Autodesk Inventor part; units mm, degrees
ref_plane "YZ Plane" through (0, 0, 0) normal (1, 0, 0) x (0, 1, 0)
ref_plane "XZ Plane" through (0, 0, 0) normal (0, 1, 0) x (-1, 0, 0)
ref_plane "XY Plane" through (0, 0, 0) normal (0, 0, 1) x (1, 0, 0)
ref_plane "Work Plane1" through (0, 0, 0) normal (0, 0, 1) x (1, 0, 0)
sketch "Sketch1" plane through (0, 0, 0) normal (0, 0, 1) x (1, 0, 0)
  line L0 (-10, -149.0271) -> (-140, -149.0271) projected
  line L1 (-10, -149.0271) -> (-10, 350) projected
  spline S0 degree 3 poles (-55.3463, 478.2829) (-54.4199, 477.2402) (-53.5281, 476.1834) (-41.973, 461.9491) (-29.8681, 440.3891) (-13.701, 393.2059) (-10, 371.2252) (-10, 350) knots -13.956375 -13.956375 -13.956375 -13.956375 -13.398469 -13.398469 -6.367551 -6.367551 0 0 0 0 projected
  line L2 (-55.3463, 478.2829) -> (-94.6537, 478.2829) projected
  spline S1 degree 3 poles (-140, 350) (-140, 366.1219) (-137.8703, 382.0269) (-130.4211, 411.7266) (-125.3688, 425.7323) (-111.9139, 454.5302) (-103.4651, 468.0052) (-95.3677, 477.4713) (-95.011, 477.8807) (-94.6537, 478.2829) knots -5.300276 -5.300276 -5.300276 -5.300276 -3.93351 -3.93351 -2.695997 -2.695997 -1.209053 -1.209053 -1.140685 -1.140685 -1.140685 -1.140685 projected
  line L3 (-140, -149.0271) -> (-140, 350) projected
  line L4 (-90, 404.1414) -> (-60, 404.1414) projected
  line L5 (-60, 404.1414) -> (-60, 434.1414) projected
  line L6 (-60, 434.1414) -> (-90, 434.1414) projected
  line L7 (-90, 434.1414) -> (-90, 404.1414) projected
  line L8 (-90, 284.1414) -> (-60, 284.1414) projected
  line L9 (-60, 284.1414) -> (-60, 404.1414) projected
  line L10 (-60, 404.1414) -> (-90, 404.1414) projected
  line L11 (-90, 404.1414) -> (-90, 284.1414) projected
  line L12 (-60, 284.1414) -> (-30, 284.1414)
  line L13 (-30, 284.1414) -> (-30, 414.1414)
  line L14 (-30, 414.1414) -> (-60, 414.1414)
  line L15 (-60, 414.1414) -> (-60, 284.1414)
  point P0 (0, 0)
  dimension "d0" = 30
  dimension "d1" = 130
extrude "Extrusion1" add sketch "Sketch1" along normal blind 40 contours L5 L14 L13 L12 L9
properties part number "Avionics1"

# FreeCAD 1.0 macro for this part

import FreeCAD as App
import Part
import Sketcher


def add_polygon(sketch, points):
    """Adds a closed chain of lines whose ends are joined by coincident constraints."""
    first, n = sketch.GeometryCount, len(points)
    for a, b in zip(points, points[1:] + points[:1]):
        sketch.addGeometry(Part.LineSegment(App.Vector(*a, 0), App.Vector(*b, 0)), False)
    for i in range(n):
        sketch.addConstraint(Sketcher.Constraint("Coincident", first + i, 2, first + (i + 1) % n, 1))

doc = App.newDocument("Part")
body = doc.addObject("PartDesign::Body", "Body")

sketch1 = body.newObject("Sketcher::SketchObject", "Sketch")
sketch1.AttachmentSupport = (doc.getObject("XY_Plane"), [""])
sketch1.MapMode = "FlatFace"
add_polygon(sketch1, [(-60, 414), (-60, 284), (-30, 284), (-30, 414)])
sketch1.addConstraint(Sketcher.Constraint("Vertical", 0))
sketch1.addConstraint(Sketcher.Constraint("Horizontal", 1))
sketch1.addConstraint(Sketcher.Constraint("Vertical", 2))
sketch1.addConstraint(Sketcher.Constraint("Horizontal", 3))
sketch1.addConstraint(Sketcher.Constraint("DistanceX", 1, 1, 1, 2, 30.0))
sketch1.addConstraint(Sketcher.Constraint("DistanceY", 0, 2, 0, 1, 130.0))
sketch1.addConstraint(Sketcher.Constraint("DistanceX", 1, 2, -1, 1, 30.0))
sketch1.addConstraint(Sketcher.Constraint("DistanceY", -1, 1, 0, 2, 284.1414))
pad1 = body.newObject("PartDesign::Pad", "Pad")
pad1.Profile = sketch1
pad1.Length = 40

doc.recompute()
